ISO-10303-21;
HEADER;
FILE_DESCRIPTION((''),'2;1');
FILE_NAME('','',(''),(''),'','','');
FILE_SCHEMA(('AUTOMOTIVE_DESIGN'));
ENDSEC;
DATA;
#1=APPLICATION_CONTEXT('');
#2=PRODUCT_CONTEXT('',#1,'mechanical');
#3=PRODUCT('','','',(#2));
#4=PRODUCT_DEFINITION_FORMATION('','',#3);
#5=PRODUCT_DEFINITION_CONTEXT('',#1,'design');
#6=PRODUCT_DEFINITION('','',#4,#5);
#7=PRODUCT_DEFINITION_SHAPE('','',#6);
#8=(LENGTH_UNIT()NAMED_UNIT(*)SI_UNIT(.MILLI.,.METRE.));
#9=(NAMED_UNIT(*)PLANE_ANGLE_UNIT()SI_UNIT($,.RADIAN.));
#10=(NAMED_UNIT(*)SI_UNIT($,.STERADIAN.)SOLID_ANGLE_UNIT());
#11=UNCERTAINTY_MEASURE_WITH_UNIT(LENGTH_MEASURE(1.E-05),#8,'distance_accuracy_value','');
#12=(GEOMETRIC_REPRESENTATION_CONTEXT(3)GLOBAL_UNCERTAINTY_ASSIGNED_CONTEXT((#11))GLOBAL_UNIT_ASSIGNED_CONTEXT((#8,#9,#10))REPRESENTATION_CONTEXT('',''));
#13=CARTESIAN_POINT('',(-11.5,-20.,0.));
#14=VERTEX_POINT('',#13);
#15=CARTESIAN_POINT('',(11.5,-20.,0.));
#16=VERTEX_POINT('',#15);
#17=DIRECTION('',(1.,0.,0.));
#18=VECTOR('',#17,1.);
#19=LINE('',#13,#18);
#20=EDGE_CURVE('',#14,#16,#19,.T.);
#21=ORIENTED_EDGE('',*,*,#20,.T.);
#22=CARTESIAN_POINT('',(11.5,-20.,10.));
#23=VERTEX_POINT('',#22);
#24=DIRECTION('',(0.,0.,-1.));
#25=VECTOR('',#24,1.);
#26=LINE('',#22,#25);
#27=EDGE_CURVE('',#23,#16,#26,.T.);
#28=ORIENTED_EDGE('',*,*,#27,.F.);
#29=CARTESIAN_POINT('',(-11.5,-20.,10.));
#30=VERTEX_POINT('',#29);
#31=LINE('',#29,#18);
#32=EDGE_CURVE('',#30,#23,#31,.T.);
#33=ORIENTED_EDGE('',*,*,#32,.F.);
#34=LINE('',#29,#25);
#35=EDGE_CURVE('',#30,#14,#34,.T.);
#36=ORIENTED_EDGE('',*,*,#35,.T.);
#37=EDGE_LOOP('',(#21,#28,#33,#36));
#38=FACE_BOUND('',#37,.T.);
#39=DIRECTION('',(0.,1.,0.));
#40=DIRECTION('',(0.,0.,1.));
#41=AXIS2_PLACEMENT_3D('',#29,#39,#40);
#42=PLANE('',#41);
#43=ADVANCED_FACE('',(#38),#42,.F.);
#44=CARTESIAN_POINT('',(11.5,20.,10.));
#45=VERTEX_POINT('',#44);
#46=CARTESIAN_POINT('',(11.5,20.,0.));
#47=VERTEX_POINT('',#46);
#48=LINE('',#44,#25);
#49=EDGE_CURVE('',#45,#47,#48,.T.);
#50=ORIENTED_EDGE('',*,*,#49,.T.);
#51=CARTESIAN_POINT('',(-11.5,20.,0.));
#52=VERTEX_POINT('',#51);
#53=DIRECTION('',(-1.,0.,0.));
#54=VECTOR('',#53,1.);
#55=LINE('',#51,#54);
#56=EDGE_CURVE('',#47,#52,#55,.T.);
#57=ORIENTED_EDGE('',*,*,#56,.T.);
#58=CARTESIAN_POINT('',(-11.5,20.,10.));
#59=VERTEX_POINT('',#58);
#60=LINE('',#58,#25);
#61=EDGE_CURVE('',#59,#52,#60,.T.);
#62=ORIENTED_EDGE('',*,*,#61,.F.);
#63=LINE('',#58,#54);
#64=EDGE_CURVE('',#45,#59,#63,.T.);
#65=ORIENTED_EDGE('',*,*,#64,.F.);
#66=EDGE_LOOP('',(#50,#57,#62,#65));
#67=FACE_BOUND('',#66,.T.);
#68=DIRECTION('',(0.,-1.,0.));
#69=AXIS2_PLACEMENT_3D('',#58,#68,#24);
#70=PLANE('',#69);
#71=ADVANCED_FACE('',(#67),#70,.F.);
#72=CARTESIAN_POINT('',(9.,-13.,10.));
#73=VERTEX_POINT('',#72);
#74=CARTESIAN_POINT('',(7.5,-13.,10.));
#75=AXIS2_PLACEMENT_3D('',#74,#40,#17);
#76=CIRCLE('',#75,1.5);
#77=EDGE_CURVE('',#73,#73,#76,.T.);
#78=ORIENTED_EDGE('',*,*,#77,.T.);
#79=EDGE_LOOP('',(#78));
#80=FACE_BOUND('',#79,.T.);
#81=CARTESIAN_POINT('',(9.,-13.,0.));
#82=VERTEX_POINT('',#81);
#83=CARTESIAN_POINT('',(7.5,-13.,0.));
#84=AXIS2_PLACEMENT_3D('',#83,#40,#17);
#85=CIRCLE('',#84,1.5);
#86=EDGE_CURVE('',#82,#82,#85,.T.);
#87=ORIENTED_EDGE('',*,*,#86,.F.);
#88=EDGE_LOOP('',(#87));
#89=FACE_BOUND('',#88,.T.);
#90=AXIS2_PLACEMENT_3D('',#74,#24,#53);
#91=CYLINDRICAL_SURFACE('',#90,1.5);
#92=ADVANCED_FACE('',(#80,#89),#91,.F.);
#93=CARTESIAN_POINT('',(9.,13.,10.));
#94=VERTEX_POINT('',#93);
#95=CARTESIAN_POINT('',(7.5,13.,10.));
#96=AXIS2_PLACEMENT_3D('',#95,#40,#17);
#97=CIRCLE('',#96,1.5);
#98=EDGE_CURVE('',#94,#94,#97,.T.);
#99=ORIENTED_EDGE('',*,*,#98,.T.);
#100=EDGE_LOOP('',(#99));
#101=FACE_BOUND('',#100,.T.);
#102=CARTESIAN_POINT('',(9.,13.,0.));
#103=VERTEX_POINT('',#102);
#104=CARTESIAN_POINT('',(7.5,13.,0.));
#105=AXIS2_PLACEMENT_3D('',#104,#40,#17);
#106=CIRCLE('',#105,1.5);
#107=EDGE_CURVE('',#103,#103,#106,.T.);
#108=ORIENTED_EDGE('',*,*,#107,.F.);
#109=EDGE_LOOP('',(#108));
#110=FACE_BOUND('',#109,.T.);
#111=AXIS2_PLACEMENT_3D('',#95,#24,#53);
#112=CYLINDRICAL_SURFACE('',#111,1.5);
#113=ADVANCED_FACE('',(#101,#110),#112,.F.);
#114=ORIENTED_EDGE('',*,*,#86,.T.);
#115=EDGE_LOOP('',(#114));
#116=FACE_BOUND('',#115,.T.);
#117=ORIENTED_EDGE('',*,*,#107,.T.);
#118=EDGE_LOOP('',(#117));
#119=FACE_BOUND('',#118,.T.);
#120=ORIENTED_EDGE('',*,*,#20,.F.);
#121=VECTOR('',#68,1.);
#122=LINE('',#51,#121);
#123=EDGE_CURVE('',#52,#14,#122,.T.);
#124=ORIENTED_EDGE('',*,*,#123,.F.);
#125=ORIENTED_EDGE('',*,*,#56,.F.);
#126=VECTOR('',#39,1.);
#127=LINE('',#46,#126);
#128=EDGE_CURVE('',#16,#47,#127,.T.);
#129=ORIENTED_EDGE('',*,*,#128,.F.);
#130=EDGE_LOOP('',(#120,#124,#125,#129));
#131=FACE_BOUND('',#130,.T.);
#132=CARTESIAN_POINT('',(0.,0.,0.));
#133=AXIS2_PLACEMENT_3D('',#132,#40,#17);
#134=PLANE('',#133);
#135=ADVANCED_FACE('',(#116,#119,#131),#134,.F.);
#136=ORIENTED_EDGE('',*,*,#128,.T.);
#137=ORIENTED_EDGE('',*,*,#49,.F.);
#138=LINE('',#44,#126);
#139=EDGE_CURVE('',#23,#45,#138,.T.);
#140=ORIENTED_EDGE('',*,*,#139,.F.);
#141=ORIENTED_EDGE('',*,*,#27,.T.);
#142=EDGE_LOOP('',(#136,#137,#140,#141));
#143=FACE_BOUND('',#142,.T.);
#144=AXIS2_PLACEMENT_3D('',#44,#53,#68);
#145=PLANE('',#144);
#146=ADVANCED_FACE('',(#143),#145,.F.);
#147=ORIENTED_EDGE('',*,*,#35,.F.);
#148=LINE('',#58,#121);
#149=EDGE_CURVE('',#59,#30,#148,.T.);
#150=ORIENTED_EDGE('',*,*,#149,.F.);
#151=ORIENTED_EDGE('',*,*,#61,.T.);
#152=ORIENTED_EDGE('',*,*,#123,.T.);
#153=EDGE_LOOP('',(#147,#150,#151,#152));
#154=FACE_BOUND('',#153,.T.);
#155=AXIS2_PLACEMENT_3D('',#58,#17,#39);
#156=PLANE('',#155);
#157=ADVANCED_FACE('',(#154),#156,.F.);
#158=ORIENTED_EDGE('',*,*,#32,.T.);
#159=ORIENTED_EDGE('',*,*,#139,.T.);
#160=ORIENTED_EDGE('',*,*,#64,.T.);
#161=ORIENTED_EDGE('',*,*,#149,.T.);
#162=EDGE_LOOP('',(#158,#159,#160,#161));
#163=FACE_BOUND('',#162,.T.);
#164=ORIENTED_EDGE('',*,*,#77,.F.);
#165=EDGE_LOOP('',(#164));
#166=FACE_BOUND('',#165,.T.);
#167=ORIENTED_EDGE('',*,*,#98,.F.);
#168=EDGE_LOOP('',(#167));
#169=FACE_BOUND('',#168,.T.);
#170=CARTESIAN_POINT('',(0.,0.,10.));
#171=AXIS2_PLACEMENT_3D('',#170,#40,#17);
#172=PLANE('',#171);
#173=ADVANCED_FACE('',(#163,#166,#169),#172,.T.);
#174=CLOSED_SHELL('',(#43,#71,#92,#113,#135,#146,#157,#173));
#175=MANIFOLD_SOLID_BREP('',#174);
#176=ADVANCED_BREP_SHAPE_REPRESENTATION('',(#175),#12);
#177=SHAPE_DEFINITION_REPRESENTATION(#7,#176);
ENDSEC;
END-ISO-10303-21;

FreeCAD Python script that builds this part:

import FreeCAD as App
import Part
import Sketcher
Q = App.Units.Quantity

doc = App.newDocument("Part")
params = doc.addObject("Spreadsheet::Sheet", "Params")
for row, (alias, value) in enumerate([
    ("sketch1_diameter", "3 mm"),
    ("sketch1_width", "23 mm"),
    ("sketch1_height", "40 mm"),
    ("pad1_length", "10 mm"),
], start=1):
    params.set(f"A{row}", alias)
    params.set(f"B{row}", "=" + value)
    params.setAlias(f"B{row}", alias)

body = doc.addObject("PartDesign::Body", "Body")

# Sketch on XY plane
sketch1 = body.newObject("Sketcher::SketchObject", "Sketch")
sketch1.AttachmentSupport = (doc.getObject("XY_Plane"), [""])
sketch1.MapMode = "FlatFace"
sketch1.addGeometry([
    Part.LineSegment(App.Vector(-11.5, 20, 0), App.Vector(-11.5, -20, 0)),  # 0
    Part.LineSegment(App.Vector(-11.5, -20, 0), App.Vector(11.5, -20, 0)),  # 1
    Part.LineSegment(App.Vector(11.5, -20, 0), App.Vector(11.5, 20, 0)),  # 2
    Part.LineSegment(App.Vector(11.5, 20, 0), App.Vector(-11.5, 20, 0)),  # 3
    Part.Circle(App.Vector(7.5, -13, 0), App.Vector(0, 0, 1), 1.5),  # 4
    Part.Circle(App.Vector(7.5, 13, 0), App.Vector(0, 0, 1), 1.5),  # 5
], False)
sketch1.addConstraint([
    Sketcher.Constraint("Coincident", 0, 2, 1, 1),
    Sketcher.Constraint("Coincident", 1, 2, 2, 1),
    Sketcher.Constraint("Coincident", 2, 2, 3, 1),
    Sketcher.Constraint("Coincident", 3, 2, 0, 1),
    Sketcher.Constraint("Vertical", 0),
    Sketcher.Constraint("Horizontal", 1),
    Sketcher.Constraint("Vertical", 2),
    Sketcher.Constraint("Horizontal", 3),
    Sketcher.Constraint("Equal", 4, 5),
    Sketcher.Constraint("Symmetric", 0, 2, 2, 2, -1, 1),
    Sketcher.Constraint("Symmetric", 4, 3, 5, 3, -1),
    Sketcher.Constraint("Diameter", 4, Q("3 mm")),
    Sketcher.Constraint("DistanceX", 1, 1, 1, 2, Q("23 mm")),
    Sketcher.Constraint("DistanceY", 0, 2, 0, 1, Q("40 mm")),
    Sketcher.Constraint("DistanceY", 4, 3, -1, 1, Q("13 mm")),
    Sketcher.Constraint("DistanceX", 0, 2, 4, 3, Q("19 mm")),
])
sketch1.setExpression("Constraints[11]", "Params.sketch1_diameter")
sketch1.setExpression("Constraints[12]", "Params.sketch1_width")
sketch1.setExpression("Constraints[13]", "Params.sketch1_height")
pad1 = body.newObject("PartDesign::Pad", "Pad")
pad1.Profile = sketch1
pad1.setExpression("Length", "Params.pad1_length")

doc.recompute()
